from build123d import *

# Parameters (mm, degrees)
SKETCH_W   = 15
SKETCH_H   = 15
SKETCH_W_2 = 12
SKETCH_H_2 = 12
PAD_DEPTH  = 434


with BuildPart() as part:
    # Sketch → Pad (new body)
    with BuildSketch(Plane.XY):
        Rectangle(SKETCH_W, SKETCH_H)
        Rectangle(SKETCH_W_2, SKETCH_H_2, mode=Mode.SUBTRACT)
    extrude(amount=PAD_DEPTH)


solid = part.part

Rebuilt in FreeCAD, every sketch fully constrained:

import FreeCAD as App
import Part
import Sketcher
from FreeCAD import Vector
Q = App.Units.Quantity


def add_polygon(sketch, points):
    """Adds a closed chain of lines whose ends are joined by coincident constraints."""
    first, n = sketch.GeometryCount, len(points)
    for a, b in zip(points, points[1:] + points[:1]):
        sketch.addGeometry(Part.LineSegment(App.Vector(*a, 0), App.Vector(*b, 0)), False)
    for i in range(n):
        sketch.addConstraint(Sketcher.Constraint("Coincident", first + i, 2, first + (i + 1) % n, 1))

doc = App.newDocument("Part")
body = doc.addObject("PartDesign::Body", "Body")

# Sketch on XY plane
sketch1 = doc.addObject("Sketcher::SketchObject", "Sketch")
body.addObject(sketch1)
sketch1.AttachmentSupport = (doc.XY_Plane, [""])
sketch1.MapMode = "FlatFace"
add_polygon(sketch1, [(-8, 8), (-8, -8), (8, -8), (8, 8)])  # lines 0-3
add_polygon(sketch1, [(6, -6), (-6, -6), (-6, 6), (6, 6)])  # lines 4-7
sketch1.addConstraint([
    Sketcher.Constraint("Vertical", 0),
    Sketcher.Constraint("Horizontal", 1),
    Sketcher.Constraint("Vertical", 2),
    Sketcher.Constraint("Horizontal", 3),
    Sketcher.Constraint("Horizontal", 4),
    Sketcher.Constraint("Vertical", 5),
    Sketcher.Constraint("Horizontal", 6),
    Sketcher.Constraint("Vertical", 7),
    Sketcher.Constraint("Symmetric", 0, 2, 2, 2, -1, 1),
    Sketcher.Constraint("Symmetric", 4, 2, 6, 2, -1, 1),
    Sketcher.Constraint("Equal", 3, 0),
    Sketcher.Constraint("Equal", 6, 5),
    Sketcher.Constraint("DistanceX", 1, 1, 1, 2, Q("15 mm")),
    Sketcher.Constraint("DistanceX", 4, 2, 4, 1, Q("12 mm")),
])
pad1 = doc.addObject("PartDesign::Pad", "Pad")
body.addObject(pad1)
pad1.Profile = sketch1
pad1.Length = 434

doc.recompute()
